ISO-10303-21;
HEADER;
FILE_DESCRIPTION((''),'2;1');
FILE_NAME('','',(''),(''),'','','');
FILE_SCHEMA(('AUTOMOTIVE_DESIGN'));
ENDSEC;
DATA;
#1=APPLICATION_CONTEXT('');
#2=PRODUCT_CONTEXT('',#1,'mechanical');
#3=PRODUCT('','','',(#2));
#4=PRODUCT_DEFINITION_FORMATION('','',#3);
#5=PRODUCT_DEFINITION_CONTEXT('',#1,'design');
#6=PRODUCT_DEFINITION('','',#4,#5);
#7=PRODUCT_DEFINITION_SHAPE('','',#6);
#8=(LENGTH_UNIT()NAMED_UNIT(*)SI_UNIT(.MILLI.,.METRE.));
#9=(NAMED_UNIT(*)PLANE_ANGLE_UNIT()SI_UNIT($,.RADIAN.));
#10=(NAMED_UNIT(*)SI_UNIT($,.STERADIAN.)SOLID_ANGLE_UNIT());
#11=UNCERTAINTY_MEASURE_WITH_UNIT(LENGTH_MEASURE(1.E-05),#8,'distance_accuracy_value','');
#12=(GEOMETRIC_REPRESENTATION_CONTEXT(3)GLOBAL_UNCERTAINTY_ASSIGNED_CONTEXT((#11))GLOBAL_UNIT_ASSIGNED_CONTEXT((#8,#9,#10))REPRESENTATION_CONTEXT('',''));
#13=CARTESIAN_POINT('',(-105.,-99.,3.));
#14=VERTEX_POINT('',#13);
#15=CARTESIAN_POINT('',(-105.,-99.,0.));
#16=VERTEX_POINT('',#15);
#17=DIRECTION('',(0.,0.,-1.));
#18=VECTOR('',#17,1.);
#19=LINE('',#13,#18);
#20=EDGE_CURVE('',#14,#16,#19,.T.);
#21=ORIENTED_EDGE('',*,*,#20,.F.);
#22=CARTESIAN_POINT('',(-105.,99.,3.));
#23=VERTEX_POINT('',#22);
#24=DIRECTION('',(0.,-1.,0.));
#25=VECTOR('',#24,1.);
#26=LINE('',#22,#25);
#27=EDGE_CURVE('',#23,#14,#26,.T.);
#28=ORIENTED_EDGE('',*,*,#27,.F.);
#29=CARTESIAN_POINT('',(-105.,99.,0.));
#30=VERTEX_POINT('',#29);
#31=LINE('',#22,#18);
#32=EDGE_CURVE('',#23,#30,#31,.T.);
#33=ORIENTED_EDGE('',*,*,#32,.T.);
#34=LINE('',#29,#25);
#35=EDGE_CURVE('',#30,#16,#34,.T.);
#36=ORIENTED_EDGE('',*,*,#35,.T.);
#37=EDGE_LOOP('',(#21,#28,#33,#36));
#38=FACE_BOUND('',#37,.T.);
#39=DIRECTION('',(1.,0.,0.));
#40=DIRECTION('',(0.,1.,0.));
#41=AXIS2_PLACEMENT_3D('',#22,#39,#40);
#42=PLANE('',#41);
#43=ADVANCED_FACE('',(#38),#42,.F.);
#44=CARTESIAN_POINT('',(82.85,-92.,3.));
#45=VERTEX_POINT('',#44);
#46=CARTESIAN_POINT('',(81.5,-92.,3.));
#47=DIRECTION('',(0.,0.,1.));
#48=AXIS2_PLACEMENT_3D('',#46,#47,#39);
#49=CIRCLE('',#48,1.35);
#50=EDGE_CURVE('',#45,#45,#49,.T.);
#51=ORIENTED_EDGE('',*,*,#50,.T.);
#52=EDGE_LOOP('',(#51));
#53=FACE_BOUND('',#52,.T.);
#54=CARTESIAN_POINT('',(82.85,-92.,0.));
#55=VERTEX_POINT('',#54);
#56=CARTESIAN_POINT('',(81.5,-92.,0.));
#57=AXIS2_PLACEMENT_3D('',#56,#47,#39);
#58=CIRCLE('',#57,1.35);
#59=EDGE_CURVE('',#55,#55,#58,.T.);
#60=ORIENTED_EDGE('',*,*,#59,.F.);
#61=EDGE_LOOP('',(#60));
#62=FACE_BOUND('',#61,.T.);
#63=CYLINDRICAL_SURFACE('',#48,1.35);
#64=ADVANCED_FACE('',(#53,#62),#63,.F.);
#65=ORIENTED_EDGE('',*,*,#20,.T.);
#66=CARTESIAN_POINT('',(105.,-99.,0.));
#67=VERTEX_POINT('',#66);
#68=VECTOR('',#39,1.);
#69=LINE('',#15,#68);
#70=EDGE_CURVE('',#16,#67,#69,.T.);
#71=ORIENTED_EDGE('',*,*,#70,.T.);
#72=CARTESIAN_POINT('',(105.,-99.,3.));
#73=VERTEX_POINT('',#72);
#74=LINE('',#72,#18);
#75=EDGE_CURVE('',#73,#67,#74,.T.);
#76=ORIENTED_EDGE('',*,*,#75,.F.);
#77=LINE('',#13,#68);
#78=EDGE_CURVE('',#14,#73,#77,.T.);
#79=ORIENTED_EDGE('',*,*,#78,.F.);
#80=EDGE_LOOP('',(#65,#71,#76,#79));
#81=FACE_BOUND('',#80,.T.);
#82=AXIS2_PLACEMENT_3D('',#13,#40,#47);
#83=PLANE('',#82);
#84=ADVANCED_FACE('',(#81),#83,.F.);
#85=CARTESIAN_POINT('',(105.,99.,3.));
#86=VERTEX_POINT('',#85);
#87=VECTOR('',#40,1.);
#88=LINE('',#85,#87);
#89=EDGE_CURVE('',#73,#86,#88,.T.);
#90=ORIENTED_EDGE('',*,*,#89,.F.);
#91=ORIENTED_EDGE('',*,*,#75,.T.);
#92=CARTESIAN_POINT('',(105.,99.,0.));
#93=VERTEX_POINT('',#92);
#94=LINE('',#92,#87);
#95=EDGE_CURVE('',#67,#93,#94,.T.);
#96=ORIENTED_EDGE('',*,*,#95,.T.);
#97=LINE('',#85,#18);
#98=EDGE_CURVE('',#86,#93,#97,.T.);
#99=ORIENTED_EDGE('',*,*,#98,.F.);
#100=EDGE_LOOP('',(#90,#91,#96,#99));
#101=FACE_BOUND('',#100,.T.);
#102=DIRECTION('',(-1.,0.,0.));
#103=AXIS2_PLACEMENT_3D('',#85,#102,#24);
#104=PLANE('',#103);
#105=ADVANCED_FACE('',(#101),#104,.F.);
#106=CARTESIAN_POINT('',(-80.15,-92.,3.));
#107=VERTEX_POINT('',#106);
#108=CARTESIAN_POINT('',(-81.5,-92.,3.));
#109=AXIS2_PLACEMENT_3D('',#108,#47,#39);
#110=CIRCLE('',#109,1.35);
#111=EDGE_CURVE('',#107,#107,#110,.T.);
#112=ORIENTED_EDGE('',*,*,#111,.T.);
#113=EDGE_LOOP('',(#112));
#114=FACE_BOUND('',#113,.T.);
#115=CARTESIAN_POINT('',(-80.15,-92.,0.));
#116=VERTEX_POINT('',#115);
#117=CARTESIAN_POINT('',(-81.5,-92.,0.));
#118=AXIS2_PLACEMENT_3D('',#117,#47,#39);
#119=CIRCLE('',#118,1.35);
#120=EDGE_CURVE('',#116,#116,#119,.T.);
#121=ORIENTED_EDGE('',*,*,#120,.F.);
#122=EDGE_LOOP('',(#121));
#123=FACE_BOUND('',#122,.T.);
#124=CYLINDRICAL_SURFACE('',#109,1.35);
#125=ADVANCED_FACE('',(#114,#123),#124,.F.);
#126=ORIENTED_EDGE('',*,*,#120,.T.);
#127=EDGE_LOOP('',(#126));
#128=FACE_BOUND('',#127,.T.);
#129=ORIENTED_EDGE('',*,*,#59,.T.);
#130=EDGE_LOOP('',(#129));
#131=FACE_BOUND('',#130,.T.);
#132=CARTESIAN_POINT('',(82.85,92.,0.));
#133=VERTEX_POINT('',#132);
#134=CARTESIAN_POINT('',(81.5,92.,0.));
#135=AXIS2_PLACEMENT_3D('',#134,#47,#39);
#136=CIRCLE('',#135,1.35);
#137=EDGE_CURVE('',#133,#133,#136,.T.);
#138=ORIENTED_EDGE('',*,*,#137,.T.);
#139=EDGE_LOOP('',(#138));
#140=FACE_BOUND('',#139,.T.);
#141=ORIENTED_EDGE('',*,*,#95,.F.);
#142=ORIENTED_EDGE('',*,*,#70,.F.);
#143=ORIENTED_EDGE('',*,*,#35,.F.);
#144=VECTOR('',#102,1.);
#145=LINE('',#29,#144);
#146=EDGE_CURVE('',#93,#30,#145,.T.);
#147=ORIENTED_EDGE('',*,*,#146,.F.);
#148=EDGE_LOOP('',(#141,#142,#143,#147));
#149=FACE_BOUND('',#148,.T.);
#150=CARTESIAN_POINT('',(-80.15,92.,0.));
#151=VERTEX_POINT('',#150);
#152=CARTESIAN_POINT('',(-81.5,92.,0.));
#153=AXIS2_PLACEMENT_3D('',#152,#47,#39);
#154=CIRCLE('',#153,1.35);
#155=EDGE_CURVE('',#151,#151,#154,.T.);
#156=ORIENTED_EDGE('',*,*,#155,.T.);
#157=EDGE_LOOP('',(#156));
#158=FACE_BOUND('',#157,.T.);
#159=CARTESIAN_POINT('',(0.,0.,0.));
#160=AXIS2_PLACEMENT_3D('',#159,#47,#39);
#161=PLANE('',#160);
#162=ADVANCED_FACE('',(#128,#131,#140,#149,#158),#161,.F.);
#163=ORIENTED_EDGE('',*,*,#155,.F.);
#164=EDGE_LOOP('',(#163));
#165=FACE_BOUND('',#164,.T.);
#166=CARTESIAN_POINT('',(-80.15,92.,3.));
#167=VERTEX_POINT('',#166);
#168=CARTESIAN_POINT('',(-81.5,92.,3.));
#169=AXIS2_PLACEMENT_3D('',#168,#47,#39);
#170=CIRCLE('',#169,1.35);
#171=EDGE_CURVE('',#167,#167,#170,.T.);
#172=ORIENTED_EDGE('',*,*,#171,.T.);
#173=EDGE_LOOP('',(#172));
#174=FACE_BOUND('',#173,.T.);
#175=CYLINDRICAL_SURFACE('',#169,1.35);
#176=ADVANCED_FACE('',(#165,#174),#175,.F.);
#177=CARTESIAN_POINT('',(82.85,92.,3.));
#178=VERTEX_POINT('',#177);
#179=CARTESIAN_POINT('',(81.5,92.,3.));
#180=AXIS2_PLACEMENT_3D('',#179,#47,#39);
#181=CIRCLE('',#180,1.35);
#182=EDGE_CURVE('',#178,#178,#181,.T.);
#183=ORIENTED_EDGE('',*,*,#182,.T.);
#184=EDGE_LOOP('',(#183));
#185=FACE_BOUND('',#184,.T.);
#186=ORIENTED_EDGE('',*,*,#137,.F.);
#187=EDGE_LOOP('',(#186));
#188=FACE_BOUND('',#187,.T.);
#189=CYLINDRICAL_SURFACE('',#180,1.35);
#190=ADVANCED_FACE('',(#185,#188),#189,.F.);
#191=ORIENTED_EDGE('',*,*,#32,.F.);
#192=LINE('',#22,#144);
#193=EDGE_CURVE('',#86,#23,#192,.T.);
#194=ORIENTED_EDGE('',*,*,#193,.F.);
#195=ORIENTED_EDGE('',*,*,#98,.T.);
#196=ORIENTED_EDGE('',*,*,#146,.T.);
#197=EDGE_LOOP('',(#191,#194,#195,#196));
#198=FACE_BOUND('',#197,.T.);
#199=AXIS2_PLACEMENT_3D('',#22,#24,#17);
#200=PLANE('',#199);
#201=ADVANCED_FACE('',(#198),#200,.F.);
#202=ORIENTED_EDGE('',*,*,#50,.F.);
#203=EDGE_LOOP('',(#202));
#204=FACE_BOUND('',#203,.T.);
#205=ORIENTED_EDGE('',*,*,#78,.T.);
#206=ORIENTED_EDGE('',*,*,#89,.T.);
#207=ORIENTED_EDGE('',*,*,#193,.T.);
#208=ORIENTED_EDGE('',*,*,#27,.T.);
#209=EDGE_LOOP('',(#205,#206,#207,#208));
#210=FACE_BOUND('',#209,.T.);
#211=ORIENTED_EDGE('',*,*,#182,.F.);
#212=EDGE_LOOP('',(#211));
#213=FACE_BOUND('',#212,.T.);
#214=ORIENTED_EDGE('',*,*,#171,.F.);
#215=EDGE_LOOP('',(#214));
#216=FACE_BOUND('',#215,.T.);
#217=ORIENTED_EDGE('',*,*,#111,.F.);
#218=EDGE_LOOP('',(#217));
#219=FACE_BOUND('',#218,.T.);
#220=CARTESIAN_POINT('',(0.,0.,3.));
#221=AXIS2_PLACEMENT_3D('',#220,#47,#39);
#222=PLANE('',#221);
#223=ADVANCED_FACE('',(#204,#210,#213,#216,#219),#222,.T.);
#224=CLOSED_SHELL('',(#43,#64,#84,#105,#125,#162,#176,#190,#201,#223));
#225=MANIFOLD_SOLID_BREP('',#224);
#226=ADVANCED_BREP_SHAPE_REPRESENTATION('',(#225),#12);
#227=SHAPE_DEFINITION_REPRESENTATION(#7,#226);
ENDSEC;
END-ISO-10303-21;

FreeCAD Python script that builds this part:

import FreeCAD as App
import Part
import Sketcher
from FreeCAD import Vector
Q = App.Units.Quantity


def add_polygon(sketch, points):
    """Adds a closed chain of lines whose ends are joined by coincident constraints."""
    first, n = sketch.GeometryCount, len(points)
    for a, b in zip(points, points[1:] + points[:1]):
        sketch.addGeometry(Part.LineSegment(App.Vector(*a, 0), App.Vector(*b, 0)), False)
    for i in range(n):
        sketch.addConstraint(Sketcher.Constraint("Coincident", first + i, 2, first + (i + 1) % n, 1))

doc = App.newDocument("Part")
body = doc.addObject("PartDesign::Body", "Body")

# Sketch on XY plane
sketch1 = body.newObject("Sketcher::SketchObject", "Sketch")
sketch1.AttachmentSupport = (doc.getObject("XY_Plane"), [""])
sketch1.MapMode = "FlatFace"
add_polygon(sketch1, [(-105, 99), (-105, -99), (105, -99), (105, 99)])  # lines 0-3
sketch1.addConstraint([
    Sketcher.Constraint("Vertical", 0),
    Sketcher.Constraint("Horizontal", 1),
    Sketcher.Constraint("Vertical", 2),
    Sketcher.Constraint("Horizontal", 3),
    Sketcher.Constraint("Symmetric", 0, 2, 2, 2, -1, 1),
    Sketcher.Constraint("DistanceX", 1, 1, 1, 2, Q("210 mm")),
    Sketcher.Constraint("DistanceY", 0, 2, 0, 1, Q("198 mm")),
])
pad1 = body.newObject("PartDesign::Pad", "Pad")
pad1.Profile = sketch1
pad1.Length = 3

# Sketch on XY plane
sketch2 = body.newObject("Sketcher::SketchObject", "Sketch001")
sketch2.AttachmentSupport = (doc.getObject("XY_Plane"), [""])
sketch2.MapMode = "FlatFace"
sketch2.AttachmentOffset = App.Placement(Vector(0, 0, 3), App.Rotation())
sketch2.addGeometry([
    Part.Circle(Vector(-81.5, -92, 0), Vector(0, 0, 1), 1.4),
    Part.Circle(Vector(-81.5, 92, 0), Vector(0, 0, 1), 1.4),
    Part.Circle(Vector(81.5, 92, 0), Vector(0, 0, 1), 1.4),
    Part.Circle(Vector(81.5, -92, 0), Vector(0, 0, 1), 1.4),
], False)
sketch2.addConstraint([
    Sketcher.Constraint("Equal", 0, 1),
    Sketcher.Constraint("Equal", 1, 2),
    Sketcher.Constraint("Equal", 2, 3),
    Sketcher.Constraint("Symmetric", 0, 3, 2, 3, -1, 1),
    Sketcher.Constraint("Symmetric", 1, 3, 3, 3, -1, 1),
    Sketcher.Constraint("Symmetric", 1, 3, 2, 3, -2),
    Sketcher.Constraint("Diameter", 0, Q("2.7 mm")),
    Sketcher.Constraint("DistanceY", 0, 3, -1, 1, Q("92 mm")),
    Sketcher.Constraint("DistanceX", 1, 3, 2, 3, Q("163 mm")),
])
doc.recompute()
hole = body.newObject("PartDesign::Hole", "Hole")
hole.Profile = sketch2
hole.ThreadType = "None"
hole.Diameter = 2.7
hole.DepthType = "Dimension"
hole.Depth = 3
hole.DrillPoint = "Flat"

doc.recompute()
